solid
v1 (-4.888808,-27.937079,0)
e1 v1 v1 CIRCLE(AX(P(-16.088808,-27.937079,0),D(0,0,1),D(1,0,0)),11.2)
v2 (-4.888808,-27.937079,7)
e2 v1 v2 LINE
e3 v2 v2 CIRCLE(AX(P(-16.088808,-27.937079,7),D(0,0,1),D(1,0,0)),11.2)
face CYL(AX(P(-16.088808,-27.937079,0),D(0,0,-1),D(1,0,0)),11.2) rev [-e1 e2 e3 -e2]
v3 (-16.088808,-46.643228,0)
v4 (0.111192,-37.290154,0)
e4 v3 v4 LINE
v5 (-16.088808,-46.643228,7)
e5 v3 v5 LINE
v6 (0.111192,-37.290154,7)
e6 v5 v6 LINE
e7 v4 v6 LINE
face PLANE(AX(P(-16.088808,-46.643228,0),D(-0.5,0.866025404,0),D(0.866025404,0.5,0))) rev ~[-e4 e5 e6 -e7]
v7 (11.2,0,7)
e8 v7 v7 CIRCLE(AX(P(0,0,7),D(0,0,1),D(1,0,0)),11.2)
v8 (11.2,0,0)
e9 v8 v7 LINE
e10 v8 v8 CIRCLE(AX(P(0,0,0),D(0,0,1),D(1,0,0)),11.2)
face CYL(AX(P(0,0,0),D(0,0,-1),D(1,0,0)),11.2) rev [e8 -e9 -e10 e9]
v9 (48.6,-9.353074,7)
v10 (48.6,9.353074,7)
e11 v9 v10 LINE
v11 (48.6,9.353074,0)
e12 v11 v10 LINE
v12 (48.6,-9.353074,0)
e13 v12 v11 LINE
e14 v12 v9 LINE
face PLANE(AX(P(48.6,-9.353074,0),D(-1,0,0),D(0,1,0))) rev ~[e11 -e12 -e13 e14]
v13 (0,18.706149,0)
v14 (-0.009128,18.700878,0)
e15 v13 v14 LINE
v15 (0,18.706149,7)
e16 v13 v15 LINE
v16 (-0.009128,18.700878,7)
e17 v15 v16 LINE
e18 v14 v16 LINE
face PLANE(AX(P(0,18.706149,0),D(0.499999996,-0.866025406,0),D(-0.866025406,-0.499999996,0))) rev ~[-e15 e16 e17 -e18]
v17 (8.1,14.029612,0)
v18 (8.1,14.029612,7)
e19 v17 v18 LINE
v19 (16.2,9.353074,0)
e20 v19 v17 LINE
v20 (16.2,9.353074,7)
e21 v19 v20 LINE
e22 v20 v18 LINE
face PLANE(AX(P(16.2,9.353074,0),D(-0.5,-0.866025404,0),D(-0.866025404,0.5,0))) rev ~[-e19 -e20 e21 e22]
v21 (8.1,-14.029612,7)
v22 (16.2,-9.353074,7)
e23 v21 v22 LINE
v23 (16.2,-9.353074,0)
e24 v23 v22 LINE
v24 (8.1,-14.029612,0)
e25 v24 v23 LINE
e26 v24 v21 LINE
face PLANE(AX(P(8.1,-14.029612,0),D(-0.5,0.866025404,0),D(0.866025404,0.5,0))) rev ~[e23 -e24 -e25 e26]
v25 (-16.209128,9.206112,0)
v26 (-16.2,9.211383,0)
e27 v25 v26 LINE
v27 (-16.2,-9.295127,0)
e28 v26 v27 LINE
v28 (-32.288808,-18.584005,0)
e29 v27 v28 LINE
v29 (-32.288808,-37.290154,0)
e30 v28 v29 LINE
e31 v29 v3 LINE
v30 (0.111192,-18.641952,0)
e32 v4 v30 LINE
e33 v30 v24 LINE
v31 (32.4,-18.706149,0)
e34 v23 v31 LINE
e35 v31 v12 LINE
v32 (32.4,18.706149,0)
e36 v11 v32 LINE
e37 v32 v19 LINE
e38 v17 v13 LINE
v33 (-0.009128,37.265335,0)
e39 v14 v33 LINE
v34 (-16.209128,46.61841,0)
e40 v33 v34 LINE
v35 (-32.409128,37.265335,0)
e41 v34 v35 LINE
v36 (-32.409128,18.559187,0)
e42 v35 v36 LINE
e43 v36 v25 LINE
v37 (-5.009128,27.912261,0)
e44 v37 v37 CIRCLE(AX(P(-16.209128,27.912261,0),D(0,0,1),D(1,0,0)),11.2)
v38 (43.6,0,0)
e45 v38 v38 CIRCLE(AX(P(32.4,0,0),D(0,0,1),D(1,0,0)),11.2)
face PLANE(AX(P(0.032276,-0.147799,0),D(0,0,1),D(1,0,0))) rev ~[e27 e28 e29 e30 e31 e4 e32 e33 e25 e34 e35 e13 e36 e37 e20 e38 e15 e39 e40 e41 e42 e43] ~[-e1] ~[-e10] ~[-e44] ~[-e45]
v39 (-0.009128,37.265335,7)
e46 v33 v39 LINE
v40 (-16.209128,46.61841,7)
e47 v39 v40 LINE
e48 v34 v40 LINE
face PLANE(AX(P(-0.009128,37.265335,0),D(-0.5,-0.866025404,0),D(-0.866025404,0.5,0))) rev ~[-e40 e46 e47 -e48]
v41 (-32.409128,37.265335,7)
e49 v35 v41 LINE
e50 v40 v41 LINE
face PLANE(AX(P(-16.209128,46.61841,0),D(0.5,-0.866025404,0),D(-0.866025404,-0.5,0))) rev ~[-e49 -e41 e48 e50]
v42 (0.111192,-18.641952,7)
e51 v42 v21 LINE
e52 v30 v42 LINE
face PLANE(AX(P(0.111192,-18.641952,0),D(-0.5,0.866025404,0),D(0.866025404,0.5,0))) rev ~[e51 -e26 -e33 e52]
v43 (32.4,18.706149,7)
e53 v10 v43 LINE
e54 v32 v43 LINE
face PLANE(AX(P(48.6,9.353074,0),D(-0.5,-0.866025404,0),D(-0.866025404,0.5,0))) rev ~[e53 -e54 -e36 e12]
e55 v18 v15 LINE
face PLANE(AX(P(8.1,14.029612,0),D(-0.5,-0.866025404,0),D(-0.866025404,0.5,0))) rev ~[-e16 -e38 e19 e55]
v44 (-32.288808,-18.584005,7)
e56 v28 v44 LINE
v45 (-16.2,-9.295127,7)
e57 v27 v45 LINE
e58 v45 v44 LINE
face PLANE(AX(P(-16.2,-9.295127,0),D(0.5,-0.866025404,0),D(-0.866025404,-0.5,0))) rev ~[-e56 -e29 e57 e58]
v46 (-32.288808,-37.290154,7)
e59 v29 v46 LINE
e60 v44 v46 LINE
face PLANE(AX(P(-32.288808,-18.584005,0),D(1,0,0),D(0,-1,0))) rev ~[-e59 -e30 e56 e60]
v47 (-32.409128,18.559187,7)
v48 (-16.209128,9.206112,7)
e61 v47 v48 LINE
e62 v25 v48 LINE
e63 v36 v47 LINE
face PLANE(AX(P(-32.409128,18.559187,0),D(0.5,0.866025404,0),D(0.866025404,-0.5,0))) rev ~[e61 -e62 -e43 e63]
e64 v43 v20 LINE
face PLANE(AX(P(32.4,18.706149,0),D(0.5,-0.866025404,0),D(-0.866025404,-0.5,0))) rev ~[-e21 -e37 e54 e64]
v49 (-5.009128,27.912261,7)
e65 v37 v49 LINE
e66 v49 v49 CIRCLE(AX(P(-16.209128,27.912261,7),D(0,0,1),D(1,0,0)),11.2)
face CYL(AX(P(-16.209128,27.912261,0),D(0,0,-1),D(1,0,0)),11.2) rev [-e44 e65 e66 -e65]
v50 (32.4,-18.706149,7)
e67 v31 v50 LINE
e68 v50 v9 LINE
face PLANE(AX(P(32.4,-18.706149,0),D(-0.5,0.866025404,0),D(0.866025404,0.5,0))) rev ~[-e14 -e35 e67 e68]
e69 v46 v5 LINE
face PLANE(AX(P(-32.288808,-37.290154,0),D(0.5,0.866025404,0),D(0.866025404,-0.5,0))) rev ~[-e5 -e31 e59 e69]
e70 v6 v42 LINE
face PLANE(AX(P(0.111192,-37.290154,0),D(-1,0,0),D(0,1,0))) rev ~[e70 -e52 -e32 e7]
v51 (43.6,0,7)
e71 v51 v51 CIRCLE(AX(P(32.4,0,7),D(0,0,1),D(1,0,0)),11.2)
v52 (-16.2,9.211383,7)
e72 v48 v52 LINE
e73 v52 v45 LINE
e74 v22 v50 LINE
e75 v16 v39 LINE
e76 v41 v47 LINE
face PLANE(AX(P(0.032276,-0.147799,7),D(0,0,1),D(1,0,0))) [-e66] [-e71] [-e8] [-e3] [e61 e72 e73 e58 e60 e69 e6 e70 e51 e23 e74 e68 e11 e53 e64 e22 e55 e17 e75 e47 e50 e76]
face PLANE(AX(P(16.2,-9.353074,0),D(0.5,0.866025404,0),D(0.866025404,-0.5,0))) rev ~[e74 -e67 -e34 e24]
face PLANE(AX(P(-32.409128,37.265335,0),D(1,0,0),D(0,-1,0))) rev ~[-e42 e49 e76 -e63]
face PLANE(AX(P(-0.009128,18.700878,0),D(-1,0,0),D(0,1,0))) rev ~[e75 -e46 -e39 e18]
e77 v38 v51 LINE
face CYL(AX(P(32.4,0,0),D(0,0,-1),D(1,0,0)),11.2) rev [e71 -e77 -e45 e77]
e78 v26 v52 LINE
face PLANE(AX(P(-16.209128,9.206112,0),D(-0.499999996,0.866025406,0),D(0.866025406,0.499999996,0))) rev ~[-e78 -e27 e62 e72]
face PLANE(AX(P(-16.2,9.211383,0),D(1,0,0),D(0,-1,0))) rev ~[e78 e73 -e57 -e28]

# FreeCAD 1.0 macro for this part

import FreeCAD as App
import Part
import Sketcher
from FreeCAD import Vector
Q = App.Units.Quantity

doc = App.newDocument("Part")
body = doc.addObject("PartDesign::Body", "Body")

# Sketch on XY plane
sketch1 = body.newObject("Sketcher::SketchObject", "Sketch")
sketch1.AttachmentSupport = (doc.getObject("XY_Plane"), [""])
sketch1.MapMode = "FlatFace"
sketch1.addGeometry(Part.LineSegment(Vector(-16.2, 9.211, 0), Vector(-16.2, -9.295, 0)), False)
sketch1.addGeometry(Part.LineSegment(Vector(-16.2, -9.295, 0), Vector(-32.289, -18.584, 0)), False)
sketch1.addGeometry(Part.LineSegment(Vector(-32.289, -18.584, 0), Vector(-32.289, -37.29, 0)), False)
sketch1.addGeometry(Part.LineSegment(Vector(-32.289, -37.29, 0), Vector(-16.089, -46.643, 0)), False)
sketch1.addGeometry(Part.LineSegment(Vector(-16.089, -46.643, 0), Vector(0.111, -37.29, 0)), False)
sketch1.addGeometry(Part.LineSegment(Vector(0.111, -37.29, 0), Vector(0.111, -18.642, 0)), False)
sketch1.addGeometry(Part.LineSegment(Vector(0.111, -18.642, 0), Vector(8.1, -14.03, 0)), False)
sketch1.addGeometry(Part.LineSegment(Vector(8.1, -14.03, 0), Vector(16.2, -9.353, 0)), False)
sketch1.addGeometry(Part.LineSegment(Vector(16.2, -9.353, 0), Vector(32.4, -18.706, 0)), False)
sketch1.addGeometry(Part.LineSegment(Vector(32.4, -18.706, 0), Vector(48.6, -9.353, 0)), False)
sketch1.addGeometry(Part.LineSegment(Vector(48.6, -9.353, 0), Vector(48.6, 9.353, 0)), False)
sketch1.addGeometry(Part.LineSegment(Vector(48.6, 9.353, 0), Vector(32.4, 18.706, 0)), False)
sketch1.addGeometry(Part.LineSegment(Vector(32.4, 18.706, 0), Vector(16.2, 9.353, 0)), False)
sketch1.addGeometry(Part.LineSegment(Vector(16.2, 9.353, 0), Vector(8.1, 14.03, 0)), False)
sketch1.addGeometry(Part.LineSegment(Vector(8.1, 14.03, 0), Vector(0, 18.706, 0)), False)
sketch1.addGeometry(Part.LineSegment(Vector(0, 18.706, 0), Vector(-0.009, 18.701, 0)), False)
sketch1.addGeometry(Part.LineSegment(Vector(-0.009, 18.701, 0), Vector(-0.009, 37.265, 0)), False)
sketch1.addGeometry(Part.LineSegment(Vector(-0.009, 37.265, 0), Vector(-16.209, 46.618, 0)), False)
sketch1.addGeometry(Part.LineSegment(Vector(-16.209, 46.618, 0), Vector(-32.409, 37.265, 0)), False)
sketch1.addGeometry(Part.LineSegment(Vector(-32.409, 37.265, 0), Vector(-32.409, 18.559, 0)), False)
sketch1.addGeometry(Part.LineSegment(Vector(-32.409, 18.559, 0), Vector(-16.209, 9.206, 0)), False)
sketch1.addGeometry(Part.LineSegment(Vector(-16.209, 9.206, 0), Vector(-16.2, 9.211, 0)), False)
sketch1.addGeometry(Part.Circle(Vector(-16.089, -27.937, 0), Vector(0, 0, 1), 11.2), False)
sketch1.addGeometry(Part.Circle(Vector(0, 0, 0), Vector(0, 0, 1), 11.2), False)
sketch1.addGeometry(Part.Circle(Vector(-16.209, 27.912, 0), Vector(0, 0, 1), 11.2), False)
sketch1.addGeometry(Part.Circle(Vector(32.4, 0, 0), Vector(0, 0, 1), 11.2), False)
sketch1.addConstraint(Sketcher.Constraint("Coincident", 0, 2, 1, 1))
sketch1.addConstraint(Sketcher.Constraint("Coincident", 1, 2, 2, 1))
sketch1.addConstraint(Sketcher.Constraint("Coincident", 2, 2, 3, 1))
sketch1.addConstraint(Sketcher.Constraint("Coincident", 3, 2, 4, 1))
sketch1.addConstraint(Sketcher.Constraint("Coincident", 4, 2, 5, 1))
sketch1.addConstraint(Sketcher.Constraint("Coincident", 5, 2, 6, 1))
sketch1.addConstraint(Sketcher.Constraint("Coincident", 6, 2, 7, 1))
sketch1.addConstraint(Sketcher.Constraint("Coincident", 7, 2, 8, 1))
sketch1.addConstraint(Sketcher.Constraint("Coincident", 8, 2, 9, 1))
sketch1.addConstraint(Sketcher.Constraint("Coincident", 9, 2, 10, 1))
sketch1.addConstraint(Sketcher.Constraint("Coincident", 10, 2, 11, 1))
sketch1.addConstraint(Sketcher.Constraint("Coincident", 11, 2, 12, 1))
sketch1.addConstraint(Sketcher.Constraint("Coincident", 12, 2, 13, 1))
sketch1.addConstraint(Sketcher.Constraint("Coincident", 13, 2, 14, 1))
sketch1.addConstraint(Sketcher.Constraint("Coincident", 14, 2, 15, 1))
sketch1.addConstraint(Sketcher.Constraint("Coincident", 15, 2, 16, 1))
sketch1.addConstraint(Sketcher.Constraint("Coincident", 16, 2, 17, 1))
sketch1.addConstraint(Sketcher.Constraint("Coincident", 17, 2, 18, 1))
sketch1.addConstraint(Sketcher.Constraint("Coincident", 18, 2, 19, 1))
sketch1.addConstraint(Sketcher.Constraint("Coincident", 19, 2, 20, 1))
sketch1.addConstraint(Sketcher.Constraint("Coincident", 20, 2, 21, 1))
sketch1.addConstraint(Sketcher.Constraint("Coincident", 21, 2, 0, 1))
sketch1.addConstraint(Sketcher.Constraint("Vertical", 0))
sketch1.addConstraint(Sketcher.Constraint("Vertical", 2))
sketch1.addConstraint(Sketcher.Constraint("Vertical", 5))
sketch1.addConstraint(Sketcher.Constraint("Vertical", 10))
sketch1.addConstraint(Sketcher.Constraint("Vertical", 16))
sketch1.addConstraint(Sketcher.Constraint("Vertical", 19))
sketch1.addConstraint(Sketcher.Constraint("Coincident", 23, 3, -1, 1))
sketch1.addConstraint(Sketcher.Constraint("Equal", 22, 23))
sketch1.addConstraint(Sketcher.Constraint("Equal", 23, 24))
sketch1.addConstraint(Sketcher.Constraint("Equal", 24, 25))
sketch1.addConstraint(Sketcher.Constraint("Symmetric", 8, 2, 11, 2, -1))
sketch1.addConstraint(Sketcher.Constraint("Symmetric", 7, 2, 12, 2, -1))
sketch1.addConstraint(Sketcher.Constraint("Symmetric", 6, 2, 13, 2, -1))
sketch1.addConstraint(Sketcher.Constraint("PointOnObject", 25, 3, -1))
sketch1.addConstraint(Sketcher.Constraint("PointOnObject", 14, 2, -2))
sketch1.addConstraint(Sketcher.Constraint("Parallel", 1, 4))
sketch1.addConstraint(Sketcher.Constraint("Parallel", 4, 6))
sketch1.addConstraint(Sketcher.Constraint("Parallel", 6, 7))
sketch1.addConstraint(Sketcher.Constraint("Parallel", 3, 8))
sketch1.addConstraint(Sketcher.Constraint("Parallel", 7, 9))
sketch1.addConstraint(Sketcher.Constraint("Parallel", 8, 11))
sketch1.addConstraint(Sketcher.Constraint("Parallel", 9, 12))
sketch1.addConstraint(Sketcher.Constraint("Parallel", 13, 14))
sketch1.addConstraint(Sketcher.Constraint("Parallel", 12, 15))
sketch1.addConstraint(Sketcher.Constraint("Parallel", 14, 17))
sketch1.addConstraint(Sketcher.Constraint("Parallel", 12, 18))
sketch1.addConstraint(Sketcher.Constraint("Parallel", 17, 20))
sketch1.addConstraint(Sketcher.Constraint("Parallel", 18, 21))
sketch1.addConstraint(Sketcher.Constraint("Horizontal", 2, 2, 4, 2))
sketch1.addConstraint(Sketcher.Constraint("Horizontal", 7, 2, 9, 2))
sketch1.addConstraint(Sketcher.Constraint("Horizontal", 11, 2, 14, 2))
sketch1.addConstraint(Sketcher.Constraint("Horizontal", 16, 2, 18, 2))
sketch1.addConstraint(Sketcher.Constraint("Vertical", 22, 3, 3, 2))
sketch1.addConstraint(Sketcher.Constraint("Vertical", 25, 3, 8, 2))
sketch1.addConstraint(Sketcher.Constraint("Vertical", 24, 3, 17, 2))
sketch1.addConstraint(Sketcher.Constraint("Vertical", 17, 2, 20, 2))
sketch1.addConstraint(Sketcher.Constraint("Equal", 2, 10))
sketch1.addConstraint(Sketcher.Constraint("Equal", 10, 19))
sketch1.addConstraint(Sketcher.Constraint("Equal", 4, 8))
sketch1.addConstraint(Sketcher.Constraint("Equal", 13, 14))
sketch1.addConstraint(Sketcher.Constraint("Equal", 12, 17))
sketch1.addConstraint(Sketcher.Constraint("Equal", 15, 21))
sketch1.addConstraint(Sketcher.Constraint("Diameter", 22, 22.4))
sketch1.addConstraint(Sketcher.Constraint("Angle", 1, Q("-150 deg")))
sketch1.addConstraint(Sketcher.Constraint("DistanceX", -1, 1, 25, 3, 32.4))
sketch1.addConstraint(Sketcher.Constraint("DistanceY", 5, 1, 5, 2, 18.648202))
sketch1.addConstraint(Sketcher.Constraint("DistanceY", 0, 2, 0, 1, 18.50651))
sketch1.addConstraint(Sketcher.Constraint("DistanceY", 2, 2, 2, 1, 18.706149))
sketch1.addConstraint(Sketcher.Constraint("DistanceY", 3, 2, 0, 2, 37.348101))
sketch1.addConstraint(Sketcher.Constraint("DistanceY", 13, 2, 17, 2, 32.588798))
sketch1.addConstraint(Sketcher.Constraint("DistanceY", 22, 3, -1, 1, 27.937079))
sketch1.addConstraint(Sketcher.Constraint("DistanceY", -1, 1, 24, 3, 27.912261))
pad1 = body.newObject("PartDesign::Pad", "Pad")
pad1.Profile = sketch1
pad1.Length = 7

doc.recompute()
